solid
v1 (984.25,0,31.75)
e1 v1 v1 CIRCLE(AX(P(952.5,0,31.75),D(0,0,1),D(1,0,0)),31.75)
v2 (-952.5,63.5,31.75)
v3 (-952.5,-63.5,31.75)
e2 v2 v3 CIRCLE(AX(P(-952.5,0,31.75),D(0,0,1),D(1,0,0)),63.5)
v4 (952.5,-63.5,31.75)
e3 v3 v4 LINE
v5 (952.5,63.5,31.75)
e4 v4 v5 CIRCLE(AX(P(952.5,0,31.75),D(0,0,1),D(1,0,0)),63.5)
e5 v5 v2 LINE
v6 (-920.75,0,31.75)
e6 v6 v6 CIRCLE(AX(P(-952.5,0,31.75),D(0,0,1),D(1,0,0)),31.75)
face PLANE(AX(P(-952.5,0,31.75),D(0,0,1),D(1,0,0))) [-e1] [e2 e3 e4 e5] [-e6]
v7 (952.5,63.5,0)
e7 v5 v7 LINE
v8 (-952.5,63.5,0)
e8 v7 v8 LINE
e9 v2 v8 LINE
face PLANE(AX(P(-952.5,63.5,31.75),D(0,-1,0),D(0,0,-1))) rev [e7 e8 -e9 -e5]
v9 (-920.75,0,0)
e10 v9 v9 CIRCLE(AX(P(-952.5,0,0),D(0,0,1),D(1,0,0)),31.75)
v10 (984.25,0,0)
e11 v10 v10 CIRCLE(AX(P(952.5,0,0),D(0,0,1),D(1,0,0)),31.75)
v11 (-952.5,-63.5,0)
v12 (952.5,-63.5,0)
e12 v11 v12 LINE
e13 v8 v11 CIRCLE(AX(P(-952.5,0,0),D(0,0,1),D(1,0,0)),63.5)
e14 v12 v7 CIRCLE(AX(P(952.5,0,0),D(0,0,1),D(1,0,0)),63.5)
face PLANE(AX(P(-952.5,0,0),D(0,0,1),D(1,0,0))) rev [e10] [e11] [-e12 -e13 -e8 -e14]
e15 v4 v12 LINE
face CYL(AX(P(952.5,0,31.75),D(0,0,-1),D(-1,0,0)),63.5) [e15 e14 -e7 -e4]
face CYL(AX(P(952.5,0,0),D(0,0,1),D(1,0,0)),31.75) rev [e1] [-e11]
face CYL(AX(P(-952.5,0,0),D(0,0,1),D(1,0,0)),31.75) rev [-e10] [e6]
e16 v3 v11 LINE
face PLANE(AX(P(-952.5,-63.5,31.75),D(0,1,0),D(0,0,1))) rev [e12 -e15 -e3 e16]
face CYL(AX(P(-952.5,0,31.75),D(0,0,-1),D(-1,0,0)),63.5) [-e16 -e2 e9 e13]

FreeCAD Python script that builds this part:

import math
import FreeCAD as App
import Part
import Sketcher
Q = App.Units.Quantity

doc = App.newDocument("Part")
body = doc.addObject("PartDesign::Body", "Body")

sketch1 = body.newObject("Sketcher::SketchObject", "Sketch")
sketch1.AttachmentSupport = (doc.getObject("XY_Plane"), [""])
sketch1.MapMode = "FlatFace"
sketch1.addGeometry([
    Part.LineSegment(App.Vector(952.5, 63.5, 0), App.Vector(-952.5, 63.5, 0)),
    Part.ArcOfCircle(Part.Circle(App.Vector(-952.5, 0, 0), App.Vector(0, 0, 1), 63.5), math.radians(90), math.radians(270)),
    Part.LineSegment(App.Vector(-952.5, -63.5, 0), App.Vector(952.5, -63.5, 0)),
    Part.ArcOfCircle(Part.Circle(App.Vector(952.5, 0, 0), App.Vector(0, 0, 1), 63.5), math.radians(-90), math.radians(90)),
], False)
sketch1.addConstraint([
    Sketcher.Constraint("Tangent", 0, 2, 1, 1),
    Sketcher.Constraint("Tangent", 1, 2, 2, 1),
    Sketcher.Constraint("Tangent", 2, 2, 3, 1),
    Sketcher.Constraint("Tangent", 3, 2, 0, 1),
    Sketcher.Constraint("Horizontal", 0),
    Sketcher.Constraint("Horizontal", 2),
    Sketcher.Constraint("Symmetric", 1, 3, 3, 3, -1, 1),
    Sketcher.Constraint("Radius", 1, Q("2.5 in")),
    Sketcher.Constraint("DistanceX", 0, 2, 0, 1, Q("75 in")),
])
pad1 = body.newObject("PartDesign::Pad", "Pad")
pad1.Profile = sketch1
pad1.Length = Q("1.25 in")

sketch2 = body.newObject("Sketcher::SketchObject", "Sketch001")
sketch2.AttachmentSupport = (doc.getObject("XY_Plane"), [""])
sketch2.MapMode = "FlatFace"
sketch2.AttachmentOffset = App.Placement(App.Vector(0, 0, 1.25 * 25.4), App.Rotation())
sketch2.addGeometry([
    Part.Circle(App.Vector(-952.5, 0, 0), App.Vector(0, 0, 1), 31.75),
    Part.Circle(App.Vector(952.5, 0, 0), App.Vector(0, 0, 1), 31.75),
], False)
sketch2.addConstraint([
    Sketcher.Constraint("Equal", 0, 1),
    Sketcher.Constraint("Symmetric", 0, 3, 1, 3, -1, 1),
    Sketcher.Constraint("PointOnObject", 0, 3, -1),
    Sketcher.Constraint("Diameter", 0, Q("2.5 in")),
    Sketcher.Constraint("DistanceX", 0, 3, 1, 3, Q("75 in")),
])
pocket1 = body.newObject("PartDesign::Pocket", "Pocket")
pocket1.Profile = sketch2
pocket1.Type = "ThroughAll"

doc.recompute()
